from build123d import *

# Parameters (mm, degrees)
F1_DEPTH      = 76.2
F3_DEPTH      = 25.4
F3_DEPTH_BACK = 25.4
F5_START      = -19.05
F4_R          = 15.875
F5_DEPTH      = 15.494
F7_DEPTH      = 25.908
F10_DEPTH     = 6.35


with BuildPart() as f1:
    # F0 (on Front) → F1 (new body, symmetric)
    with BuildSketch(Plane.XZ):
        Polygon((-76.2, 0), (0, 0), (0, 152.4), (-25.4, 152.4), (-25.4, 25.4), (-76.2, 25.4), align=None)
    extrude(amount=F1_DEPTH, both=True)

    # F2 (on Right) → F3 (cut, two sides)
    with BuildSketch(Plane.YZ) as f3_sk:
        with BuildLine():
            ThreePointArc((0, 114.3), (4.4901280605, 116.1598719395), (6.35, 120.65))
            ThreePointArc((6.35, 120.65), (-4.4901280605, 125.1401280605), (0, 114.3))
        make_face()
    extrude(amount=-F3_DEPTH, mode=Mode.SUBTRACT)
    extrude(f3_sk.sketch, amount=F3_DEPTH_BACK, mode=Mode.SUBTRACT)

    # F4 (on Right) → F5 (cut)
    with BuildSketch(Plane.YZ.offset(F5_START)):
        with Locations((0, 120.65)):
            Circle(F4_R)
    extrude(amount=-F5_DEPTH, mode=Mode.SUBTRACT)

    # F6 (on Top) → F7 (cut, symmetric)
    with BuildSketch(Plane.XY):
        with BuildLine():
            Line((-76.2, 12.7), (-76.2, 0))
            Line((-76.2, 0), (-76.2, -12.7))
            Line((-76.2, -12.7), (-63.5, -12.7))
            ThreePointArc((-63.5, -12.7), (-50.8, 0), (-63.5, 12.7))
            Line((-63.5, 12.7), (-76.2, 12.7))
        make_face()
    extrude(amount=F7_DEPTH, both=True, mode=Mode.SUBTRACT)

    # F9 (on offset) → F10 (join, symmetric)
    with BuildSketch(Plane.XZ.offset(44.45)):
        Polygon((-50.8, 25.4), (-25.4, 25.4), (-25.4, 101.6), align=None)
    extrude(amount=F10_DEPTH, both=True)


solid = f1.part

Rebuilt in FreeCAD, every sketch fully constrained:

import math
import FreeCAD as App
import Part
import Sketcher
from FreeCAD import Vector
Q = App.Units.Quantity


def add_polygon(sketch, points):
    """Adds a closed chain of lines whose ends are joined by coincident constraints."""
    first, n = sketch.GeometryCount, len(points)
    for a, b in zip(points, points[1:] + points[:1]):
        sketch.addGeometry(Part.LineSegment(App.Vector(*a, 0), App.Vector(*b, 0)), False)
    for i in range(n):
        sketch.addConstraint(Sketcher.Constraint("Coincident", first + i, 2, first + (i + 1) % n, 1))

doc = App.newDocument("Part")
body = doc.addObject("PartDesign::Body", "Body")

# Sketch on XZ plane
sketch1 = body.newObject("Sketcher::SketchObject", "Sketch")
sketch1.AttachmentSupport = (doc.getObject("XZ_Plane"), [""])
sketch1.MapMode = "FlatFace"
add_polygon(sketch1, [(-76.2, 0), (0, 0), (0, 152.4), (-25.4, 152.4), (-25.4, 25.4), (-76.2, 25.4)])  # lines 0-5
sketch1.addConstraint(Sketcher.Constraint("Horizontal", 0))
sketch1.addConstraint(Sketcher.Constraint("Vertical", 1))
sketch1.addConstraint(Sketcher.Constraint("Horizontal", 2))
sketch1.addConstraint(Sketcher.Constraint("Vertical", 3))
sketch1.addConstraint(Sketcher.Constraint("Horizontal", 4))
sketch1.addConstraint(Sketcher.Constraint("Vertical", 5))
sketch1.addConstraint(Sketcher.Constraint("Coincident", 0, 2, -1, 1))
sketch1.addConstraint(Sketcher.Constraint("Equal", 2, 5))
sketch1.addConstraint(Sketcher.Constraint("DistanceX", 0, 1, 0, 2, Q("3 in")))
sketch1.addConstraint(Sketcher.Constraint("DistanceX", 2, 2, 2, 1, Q("1 in")))
sketch1.addConstraint(Sketcher.Constraint("DistanceY", 1, 1, 1, 2, Q("6 in")))
pad1 = body.newObject("PartDesign::Pad", "Pad")
pad1.Profile = sketch1
pad1.Length = Q("6 in")
pad1.Midplane = True

# Sketch on YZ plane
sketch2 = body.newObject("Sketcher::SketchObject", "Sketch001")
sketch2.AttachmentSupport = (doc.getObject("YZ_Plane"), [""])
sketch2.MapMode = "FlatFace"
sketch2.addGeometry(Part.ArcOfCircle(Part.Circle(Vector(0, 120.65, 0), Vector(0, 0, 1), 6.35), math.radians(-90), math.radians(0)), False)
sketch2.addGeometry(Part.ArcOfCircle(Part.Circle(Vector(0, 120.65, 0), Vector(0, 0, 1), 6.35), math.radians(0), math.radians(270)), False)
sketch2.addConstraint(Sketcher.Constraint("Tangent", 0, 1, 1, 2))
sketch2.addConstraint(Sketcher.Constraint("Coincident", 1, 1, 0, 2))
sketch2.addConstraint(Sketcher.Constraint("PointOnObject", 0, 3, -2))
sketch2.addConstraint(Sketcher.Constraint("PointOnObject", 0, 1, -2))
sketch2.addConstraint(Sketcher.Constraint("Horizontal", 0, 3, 1, 1))
sketch2.addConstraint(Sketcher.Constraint("Radius", 0, Q("0.25 in")))
sketch2.addConstraint(Sketcher.Constraint("DistanceY", -1, 1, 0, 1, Q("4.5 in")))
pocket1 = body.newObject("PartDesign::Pocket", "Pocket")
pocket1.Profile = sketch2
pocket1.Type = "ThroughAll"
pocket1.Midplane = True

# Sketch on YZ plane
sketch3 = body.newObject("Sketcher::SketchObject", "Sketch002")
sketch3.AttachmentSupport = (doc.getObject("YZ_Plane"), [""])
sketch3.MapMode = "FlatFace"
sketch3.AttachmentOffset = App.Placement(Vector(0, 0, -0.75 * 25.4), App.Rotation())
sketch3.addGeometry(Part.Circle(Vector(0, 120.65, 0), Vector(0, 0, 1), 15.875), False)
sketch3.addConstraint(Sketcher.Constraint("PointOnObject", 0, 3, -2))
sketch3.addConstraint(Sketcher.Constraint("Diameter", 0, Q("1.25 in")))
sketch3.addConstraint(Sketcher.Constraint("DistanceY", -1, 1, 0, 3, Q("4.75 in")))
pocket2 = body.newObject("PartDesign::Pocket", "Pocket001")
pocket2.Profile = sketch3
pocket2.Length = Q("0.61 in")

# Sketch on XY plane
sketch4 = body.newObject("Sketcher::SketchObject", "Sketch003")
sketch4.AttachmentSupport = (doc.getObject("XY_Plane"), [""])
sketch4.MapMode = "FlatFace"
sketch4.addGeometry(Part.LineSegment(Vector(-76.2, 12.7, 0), Vector(-76.2, -12.7, 0)), False)
sketch4.addGeometry(Part.LineSegment(Vector(-76.2, -12.7, 0), Vector(-63.5, -12.7, 0)), False)
sketch4.addGeometry(Part.ArcOfCircle(Part.Circle(Vector(-63.5, 0, 0), Vector(0, 0, 1), 12.7), math.radians(-90), math.radians(90)), False)
sketch4.addGeometry(Part.LineSegment(Vector(-63.5, 12.7, 0), Vector(-76.2, 12.7, 0)), False)
sketch4.addConstraint(Sketcher.Constraint("Coincident", 0, 2, 1, 1))
sketch4.addConstraint(Sketcher.Constraint("Tangent", 1, 2, 2, 1))
sketch4.addConstraint(Sketcher.Constraint("Tangent", 2, 2, 3, 1))
sketch4.addConstraint(Sketcher.Constraint("Coincident", 3, 2, 0, 1))
sketch4.addConstraint(Sketcher.Constraint("Vertical", 0))
sketch4.addConstraint(Sketcher.Constraint("Horizontal", 1))
sketch4.addConstraint(Sketcher.Constraint("Horizontal", 3))
sketch4.addConstraint(Sketcher.Constraint("PointOnObject", 2, 3, -1))
sketch4.addConstraint(Sketcher.Constraint("Radius", 2, Q("0.5 in")))
sketch4.addConstraint(Sketcher.Constraint("DistanceX", 1, 1, 1, 2, Q("0.5 in")))
sketch4.addConstraint(Sketcher.Constraint("DistanceX", 0, 2, -1, 1, Q("3 in")))
pocket3 = body.newObject("PartDesign::Pocket", "Pocket002")
pocket3.Profile = sketch4
pocket3.Length = Q("2.04 in")
pocket3.Midplane = True

# Sketch on XZ plane
sketch5 = body.newObject("Sketcher::SketchObject", "Sketch004")
sketch5.AttachmentSupport = (doc.getObject("XZ_Plane"), [""])
sketch5.MapMode = "FlatFace"
sketch5.AttachmentOffset = App.Placement(Vector(0, 0, 1.75 * 25.4), App.Rotation())
add_polygon(sketch5, [(-50.8, 25.4), (-25.4, 25.4), (-25.4, 101.6)])  # lines 0-2
sketch5.addConstraint(Sketcher.Constraint("Horizontal", 0))
sketch5.addConstraint(Sketcher.Constraint("Vertical", 1))
sketch5.addConstraint(Sketcher.Constraint("DistanceX", 0, 1, 0, 2, Q("1 in")))
sketch5.addConstraint(Sketcher.Constraint("DistanceY", 1, 1, 1, 2, Q("3 in")))
sketch5.addConstraint(Sketcher.Constraint("DistanceX", 0, 2, -1, 1, Q("1 in")))
sketch5.addConstraint(Sketcher.Constraint("DistanceY", -1, 1, 0, 2, Q("1 in")))
pad2 = body.newObject("PartDesign::Pad", "Pad001")
pad2.Profile = sketch5
pad2.Length = Q("0.5 in")
pad2.Midplane = True

doc.recompute()
